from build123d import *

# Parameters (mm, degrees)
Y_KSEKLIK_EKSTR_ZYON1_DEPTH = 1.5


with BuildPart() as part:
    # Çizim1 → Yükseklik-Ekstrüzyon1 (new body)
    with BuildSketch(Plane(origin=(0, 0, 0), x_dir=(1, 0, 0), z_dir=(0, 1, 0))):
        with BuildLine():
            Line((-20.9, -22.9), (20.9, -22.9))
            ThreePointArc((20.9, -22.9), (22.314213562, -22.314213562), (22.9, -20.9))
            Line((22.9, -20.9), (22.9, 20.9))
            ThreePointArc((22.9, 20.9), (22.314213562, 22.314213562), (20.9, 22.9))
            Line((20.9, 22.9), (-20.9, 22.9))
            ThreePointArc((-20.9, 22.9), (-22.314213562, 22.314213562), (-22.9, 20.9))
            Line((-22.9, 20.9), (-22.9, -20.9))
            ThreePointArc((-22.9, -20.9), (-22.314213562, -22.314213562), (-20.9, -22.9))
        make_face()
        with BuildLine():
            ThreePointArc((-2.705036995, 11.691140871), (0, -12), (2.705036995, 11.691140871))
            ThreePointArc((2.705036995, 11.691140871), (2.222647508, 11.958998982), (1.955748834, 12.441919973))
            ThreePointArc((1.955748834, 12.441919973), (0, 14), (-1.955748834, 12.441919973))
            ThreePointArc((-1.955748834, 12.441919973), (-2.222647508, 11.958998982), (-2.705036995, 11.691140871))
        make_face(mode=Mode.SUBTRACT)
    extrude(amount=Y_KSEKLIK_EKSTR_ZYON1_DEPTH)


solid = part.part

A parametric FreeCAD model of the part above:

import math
import FreeCAD as App
import Part
import Sketcher
Q = App.Units.Quantity

doc = App.newDocument("Part")
body = doc.addObject("PartDesign::Body", "Body")

# Sketch on XZ plane
sketch1 = body.newObject("Sketcher::SketchObject", "Sketch")
sketch1.AttachmentSupport = (doc.getObject("XZ_Plane"), [""])
sketch1.MapMode = "FlatFace"
sketch1.addGeometry([
    Part.LineSegment(App.Vector(-20.9, 22.9, 0), App.Vector(20.9, 22.9, 0)),  # 0
    Part.ArcOfCircle(Part.Circle(App.Vector(20.9, 20.9, 0), App.Vector(0, 0, 1), 2), math.radians(0), math.radians(90)),  # 1
    Part.LineSegment(App.Vector(22.9, 20.9, 0), App.Vector(22.9, -20.9, 0)),  # 2
    Part.ArcOfCircle(Part.Circle(App.Vector(20.9, -20.9, 0), App.Vector(0, 0, 1), 2), math.radians(-90), math.radians(0)),  # 3
    Part.LineSegment(App.Vector(20.9, -22.9, 0), App.Vector(-20.9, -22.9, 0)),  # 4
    Part.ArcOfCircle(Part.Circle(App.Vector(-20.9, -20.9, 0), App.Vector(0, 0, 1), 2), math.radians(-180), math.radians(-90)),  # 5
    Part.LineSegment(App.Vector(-22.9, -20.9, 0), App.Vector(-22.9, 20.9, 0)),  # 6
    Part.ArcOfCircle(Part.Circle(App.Vector(-20.9, 20.9, 0), App.Vector(0, 0, 1), 2), math.radians(90), math.radians(180)),  # 7
    Part.ArcOfCircle(Part.Circle(App.Vector(0, 0, 0), App.Vector(0, 0, 1), 12), math.radians(-77), math.radians(257)),  # 8
    Part.ArcOfCircle(Part.Circle(App.Vector(-2.9, -12.7, 0), App.Vector(0, 0, 1), 1), math.radians(13), math.radians(77)),  # 9
    Part.ArcOfCircle(Part.Circle(App.Vector(0, -12, 0), App.Vector(0, 0, 1), 2), math.radians(-167), math.radians(-13)),  # 10
    Part.ArcOfCircle(Part.Circle(App.Vector(2.9, -12.7, 0), App.Vector(0, 0, 1), 1), math.radians(103), math.radians(167)),  # 11
], False)
sketch1.addConstraint([
    Sketcher.Constraint("Tangent", 0, 2, 1, 2),
    Sketcher.Constraint("Tangent", 1, 1, 2, 1),
    Sketcher.Constraint("Tangent", 2, 2, 3, 2),
    Sketcher.Constraint("Tangent", 3, 1, 4, 1),
    Sketcher.Constraint("Tangent", 4, 2, 5, 2),
    Sketcher.Constraint("Tangent", 5, 1, 6, 1),
    Sketcher.Constraint("Tangent", 6, 2, 7, 2),
    Sketcher.Constraint("Tangent", 7, 1, 0, 1),
    Sketcher.Constraint("Tangent", 8, 2, 9, 2),
    Sketcher.Constraint("Tangent", 9, 1, 10, 1),
    Sketcher.Constraint("Tangent", 10, 2, 11, 2),
    Sketcher.Constraint("Tangent", 11, 1, 8, 1),
    Sketcher.Constraint("Horizontal", 0),
    Sketcher.Constraint("Vertical", 2),
    Sketcher.Constraint("Horizontal", 4),
    Sketcher.Constraint("Vertical", 6),
    Sketcher.Constraint("Coincident", 8, 3, -1, 1),
    Sketcher.Constraint("Equal", 1, 3),
    Sketcher.Constraint("Equal", 3, 5),
    Sketcher.Constraint("Equal", 5, 7),
    Sketcher.Constraint("Equal", 9, 11),
    Sketcher.Constraint("Symmetric", 1, 3, 5, 3, -1, 1),
    Sketcher.Constraint("PointOnObject", 10, 3, -2),
    Sketcher.Constraint("Equal", 4, 2),
    Sketcher.Constraint("Radius", 1, Q("2 mm")),
    Sketcher.Constraint("Radius", 8, Q("12 mm")),
    Sketcher.Constraint("Radius", 9, Q("1 mm")),
    Sketcher.Constraint("DistanceX", 0, 1, 0, 2, Q("41.8 mm")),
    Sketcher.Constraint("Radius", 10, Q("2.006497 mm")),
    Sketcher.Constraint("DistanceY", 9, 3, 10, 3, Q("0.6719 mm")),
])
pad1 = body.newObject("PartDesign::Pad", "Pad")
pad1.Profile = sketch1
pad1.Length = 1.5
pad1.Reversed = True

doc.recompute()
